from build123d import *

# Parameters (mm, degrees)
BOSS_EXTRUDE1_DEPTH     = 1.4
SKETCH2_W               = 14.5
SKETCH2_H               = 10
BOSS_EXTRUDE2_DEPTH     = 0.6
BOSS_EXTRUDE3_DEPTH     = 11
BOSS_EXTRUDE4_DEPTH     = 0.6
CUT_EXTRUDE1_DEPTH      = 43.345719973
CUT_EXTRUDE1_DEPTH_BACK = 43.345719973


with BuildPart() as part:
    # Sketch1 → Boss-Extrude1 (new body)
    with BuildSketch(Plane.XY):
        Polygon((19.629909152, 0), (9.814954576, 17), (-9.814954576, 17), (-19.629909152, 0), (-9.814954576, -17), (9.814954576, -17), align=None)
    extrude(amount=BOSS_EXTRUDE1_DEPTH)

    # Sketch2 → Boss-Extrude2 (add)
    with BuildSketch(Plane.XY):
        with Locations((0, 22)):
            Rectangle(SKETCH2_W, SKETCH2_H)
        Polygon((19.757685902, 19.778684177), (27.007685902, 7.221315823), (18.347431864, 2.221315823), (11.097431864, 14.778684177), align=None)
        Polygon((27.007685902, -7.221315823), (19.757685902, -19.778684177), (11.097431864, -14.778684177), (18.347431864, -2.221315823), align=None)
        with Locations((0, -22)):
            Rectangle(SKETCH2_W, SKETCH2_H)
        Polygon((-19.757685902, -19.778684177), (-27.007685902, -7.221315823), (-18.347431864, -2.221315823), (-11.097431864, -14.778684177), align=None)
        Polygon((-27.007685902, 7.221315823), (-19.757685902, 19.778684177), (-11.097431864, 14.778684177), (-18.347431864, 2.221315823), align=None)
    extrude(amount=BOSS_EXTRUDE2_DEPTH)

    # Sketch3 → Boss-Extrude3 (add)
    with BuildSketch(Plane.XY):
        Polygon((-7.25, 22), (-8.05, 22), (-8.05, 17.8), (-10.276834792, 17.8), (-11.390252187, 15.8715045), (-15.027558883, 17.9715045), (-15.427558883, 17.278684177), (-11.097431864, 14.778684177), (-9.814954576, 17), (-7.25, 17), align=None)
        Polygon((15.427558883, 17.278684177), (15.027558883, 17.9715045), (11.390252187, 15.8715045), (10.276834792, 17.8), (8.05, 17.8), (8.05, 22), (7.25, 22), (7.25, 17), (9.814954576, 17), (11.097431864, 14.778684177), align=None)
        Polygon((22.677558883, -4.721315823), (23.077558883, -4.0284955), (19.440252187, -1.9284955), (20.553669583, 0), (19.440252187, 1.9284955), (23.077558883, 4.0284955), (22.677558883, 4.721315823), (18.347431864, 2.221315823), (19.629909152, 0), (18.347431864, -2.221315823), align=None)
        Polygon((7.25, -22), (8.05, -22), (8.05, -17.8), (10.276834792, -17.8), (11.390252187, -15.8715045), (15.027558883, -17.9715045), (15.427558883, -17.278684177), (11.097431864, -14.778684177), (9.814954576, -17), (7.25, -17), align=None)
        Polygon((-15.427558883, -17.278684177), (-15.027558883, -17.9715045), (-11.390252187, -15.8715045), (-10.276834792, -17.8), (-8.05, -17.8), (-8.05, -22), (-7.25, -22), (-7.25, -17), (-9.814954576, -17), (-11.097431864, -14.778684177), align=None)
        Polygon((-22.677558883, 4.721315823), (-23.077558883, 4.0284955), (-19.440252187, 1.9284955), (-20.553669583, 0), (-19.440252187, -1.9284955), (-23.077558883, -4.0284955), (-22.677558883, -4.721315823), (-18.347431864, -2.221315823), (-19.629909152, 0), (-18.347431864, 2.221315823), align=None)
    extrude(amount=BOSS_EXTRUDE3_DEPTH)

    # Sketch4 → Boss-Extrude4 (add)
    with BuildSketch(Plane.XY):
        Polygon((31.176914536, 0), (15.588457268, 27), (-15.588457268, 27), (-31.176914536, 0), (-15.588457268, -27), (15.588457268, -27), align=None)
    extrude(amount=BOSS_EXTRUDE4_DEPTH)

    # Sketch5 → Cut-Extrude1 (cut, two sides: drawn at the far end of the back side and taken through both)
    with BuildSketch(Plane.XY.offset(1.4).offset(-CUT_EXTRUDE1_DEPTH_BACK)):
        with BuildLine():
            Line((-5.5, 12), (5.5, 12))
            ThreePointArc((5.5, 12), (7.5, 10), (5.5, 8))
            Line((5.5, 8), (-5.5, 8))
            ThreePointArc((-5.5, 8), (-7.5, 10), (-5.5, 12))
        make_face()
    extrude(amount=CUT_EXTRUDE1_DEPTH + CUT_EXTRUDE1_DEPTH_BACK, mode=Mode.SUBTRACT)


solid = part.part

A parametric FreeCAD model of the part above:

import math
import FreeCAD as App
import Part
import Sketcher

V = App.Vector
Q = App.Units.Quantity

doc = App.newDocument("Part")
body = doc.addObject("PartDesign::Body", "Body")

# Sketch on XY plane
sketch1 = body.newObject("Sketcher::SketchObject", "Sketch")
sketch1.AttachmentSupport = (doc.getObject("XY_Plane"), [""])
sketch1.MapMode = "FlatFace"
sketch1.addGeometry([
    Part.LineSegment(V(19.629909, 0, 0), V(9.814955, 17, 0)),  # 0
    Part.LineSegment(V(9.814955, 17, 0), V(-9.814955, 17, 0)),  # 1
    Part.LineSegment(V(-9.814955, 17, 0), V(-19.629909, 0, 0)),  # 2
    Part.LineSegment(V(-19.629909, 0, 0), V(-9.814955, -17, 0)),  # 3
    Part.LineSegment(V(-9.814955, -17, 0), V(9.814955, -17, 0)),  # 4
    Part.LineSegment(V(9.814955, -17, 0), V(19.629909, 0, 0)),  # 5
], False)
sketch1.addConstraint([
    Sketcher.Constraint("Coincident", 0, 2, 1, 1),
    Sketcher.Constraint("Coincident", 1, 2, 2, 1),
    Sketcher.Constraint("Coincident", 2, 2, 3, 1),
    Sketcher.Constraint("Coincident", 3, 2, 4, 1),
    Sketcher.Constraint("Coincident", 4, 2, 5, 1),
    Sketcher.Constraint("Coincident", 5, 2, 0, 1),
    Sketcher.Constraint("Horizontal", 1),
    Sketcher.Constraint("Horizontal", 4),
    Sketcher.Constraint("Symmetric", 0, 2, 3, 2, -1, 1),
    Sketcher.Constraint("Symmetric", 2, 2, 5, 2, -1, 1),
    Sketcher.Constraint("PointOnObject", 2, 2, -1),
    Sketcher.Constraint("Parallel", 2, 5),
    Sketcher.Constraint("Vertical", 1, 2, 3, 2),
    Sketcher.Constraint("Angle", 0, Q("120 deg")),
    Sketcher.Constraint("DistanceY", -1, 1, 0, 2, 17.0),
    Sketcher.Constraint("DistanceX", 1, 2, 1, 1, 19.629909),
])
pad1 = body.newObject("PartDesign::Pad", "Pad")
pad1.Profile = sketch1
pad1.Length = 1.4

# Sketch on XY plane
sketch2 = body.newObject("Sketcher::SketchObject", "Sketch001")
sketch2.AttachmentSupport = (doc.getObject("XY_Plane"), [""])
sketch2.MapMode = "FlatFace"
sketch2.addGeometry([
    Part.LineSegment(V(-7.25, 27, 0), V(-7.25, 17, 0)),  # 0
    Part.LineSegment(V(-7.25, 17, 0), V(7.25, 17, 0)),  # 1
    Part.LineSegment(V(7.25, 17, 0), V(7.25, 27, 0)),  # 2
    Part.LineSegment(V(7.25, 27, 0), V(-7.25, 27, 0)),  # 3
    Part.LineSegment(V(27.007686, 7.221316, 0), V(19.757686, 19.778684, 0)),  # 4
    Part.LineSegment(V(19.757686, 19.778684, 0), V(11.097432, 14.778684, 0)),  # 5
    Part.LineSegment(V(11.097432, 14.778684, 0), V(18.347432, 2.221316, 0)),  # 6
    Part.LineSegment(V(18.347432, 2.221316, 0), V(27.007686, 7.221316, 0)),  # 7
    Part.LineSegment(V(19.757686, -19.778684, 0), V(27.007686, -7.221316, 0)),  # 8
    Part.LineSegment(V(27.007686, -7.221316, 0), V(18.347432, -2.221316, 0)),  # 9
    Part.LineSegment(V(18.347432, -2.221316, 0), V(11.097432, -14.778684, 0)),  # 10
    Part.LineSegment(V(11.097432, -14.778684, 0), V(19.757686, -19.778684, 0)),  # 11
    Part.LineSegment(V(-7.25, -17, 0), V(-7.25, -27, 0)),  # 12
    Part.LineSegment(V(-7.25, -27, 0), V(7.25, -27, 0)),  # 13
    Part.LineSegment(V(7.25, -27, 0), V(7.25, -17, 0)),  # 14
    Part.LineSegment(V(7.25, -17, 0), V(-7.25, -17, 0)),  # 15
    Part.LineSegment(V(-27.007686, -7.221316, 0), V(-19.757686, -19.778684, 0)),  # 16
    Part.LineSegment(V(-19.757686, -19.778684, 0), V(-11.097432, -14.778684, 0)),  # 17
    Part.LineSegment(V(-11.097432, -14.778684, 0), V(-18.347432, -2.221316, 0)),  # 18
    Part.LineSegment(V(-18.347432, -2.221316, 0), V(-27.007686, -7.221316, 0)),  # 19
    Part.LineSegment(V(-19.757686, 19.778684, 0), V(-27.007686, 7.221316, 0)),  # 20
    Part.LineSegment(V(-27.007686, 7.221316, 0), V(-18.347432, 2.221316, 0)),  # 21
    Part.LineSegment(V(-18.347432, 2.221316, 0), V(-11.097432, 14.778684, 0)),  # 22
    Part.LineSegment(V(-11.097432, 14.778684, 0), V(-19.757686, 19.778684, 0)),  # 23
], False)
sketch2.addConstraint([
    Sketcher.Constraint("Coincident", 0, 2, 1, 1),
    Sketcher.Constraint("Coincident", 1, 2, 2, 1),
    Sketcher.Constraint("Coincident", 2, 2, 3, 1),
    Sketcher.Constraint("Coincident", 3, 2, 0, 1),
    Sketcher.Constraint("Coincident", 4, 2, 5, 1),
    Sketcher.Constraint("Coincident", 5, 2, 6, 1),
    Sketcher.Constraint("Coincident", 6, 2, 7, 1),
    Sketcher.Constraint("Coincident", 7, 2, 4, 1),
    Sketcher.Constraint("Coincident", 8, 2, 9, 1),
    Sketcher.Constraint("Coincident", 9, 2, 10, 1),
    Sketcher.Constraint("Coincident", 10, 2, 11, 1),
    Sketcher.Constraint("Coincident", 11, 2, 8, 1),
    Sketcher.Constraint("Coincident", 12, 2, 13, 1),
    Sketcher.Constraint("Coincident", 13, 2, 14, 1),
    Sketcher.Constraint("Coincident", 14, 2, 15, 1),
    Sketcher.Constraint("Coincident", 15, 2, 12, 1),
    Sketcher.Constraint("Coincident", 16, 2, 17, 1),
    Sketcher.Constraint("Coincident", 17, 2, 18, 1),
    Sketcher.Constraint("Coincident", 18, 2, 19, 1),
    Sketcher.Constraint("Coincident", 19, 2, 16, 1),
    Sketcher.Constraint("Coincident", 20, 2, 21, 1),
    Sketcher.Constraint("Coincident", 21, 2, 22, 1),
    Sketcher.Constraint("Coincident", 22, 2, 23, 1),
    Sketcher.Constraint("Coincident", 23, 2, 20, 1),
    Sketcher.Constraint("Vertical", 0),
    Sketcher.Constraint("Horizontal", 1),
    Sketcher.Constraint("Vertical", 2),
    Sketcher.Constraint("Horizontal", 3),
    Sketcher.Constraint("Vertical", 12),
    Sketcher.Constraint("Horizontal", 13),
    Sketcher.Constraint("Vertical", 14),
    Sketcher.Constraint("Horizontal", 15),
    Sketcher.Constraint("Symmetric", 2, 2, 12, 2, -1, 1),
    Sketcher.Constraint("Symmetric", 0, 2, 14, 2, -1, 1),
    Sketcher.Constraint("Symmetric", 4, 2, 16, 2, -1, 1),
    Sketcher.Constraint("Symmetric", 5, 2, 17, 2, -1, 1),
    Sketcher.Constraint("Symmetric", 6, 2, 18, 2, -1, 1),
    Sketcher.Constraint("Symmetric", 7, 2, 19, 2, -1, 1),
    Sketcher.Constraint("Symmetric", 8, 2, 20, 2, -1, 1),
    Sketcher.Constraint("Symmetric", 9, 2, 21, 2, -1, 1),
    Sketcher.Constraint("Symmetric", 10, 2, 22, 2, -1, 1),
    Sketcher.Constraint("Symmetric", 11, 2, 23, 2, -1, 1),
    Sketcher.Constraint("Symmetric", 11, 2, 16, 2, -2),
    Sketcher.Constraint("Symmetric", 10, 2, 17, 2, -2),
    Sketcher.Constraint("Symmetric", 9, 2, 18, 2, -2),
    Sketcher.Constraint("Symmetric", 8, 2, 19, 2, -2),
    Sketcher.Constraint("Perpendicular", 4, 5),
    Sketcher.Constraint("Perpendicular", 5, 6),
    Sketcher.Constraint("Perpendicular", 6, 7),
    Sketcher.Constraint("Vertical", 3, 2, 12, 2),
    Sketcher.Constraint("DistanceY", 0, 2, 0, 1, 10.0),
    Sketcher.Constraint("Angle", 4, Q("120 deg")),
    Sketcher.Constraint("Distance", 5, 10.0),
    Sketcher.Constraint("DistanceX", 1, 1, 1, 2, 14.5),
    Sketcher.Constraint("DistanceY", -1, 1, 0, 2, 17.0),
    Sketcher.Constraint("DistanceY", 8, 2, 5, 2, 22.0),
    Sketcher.Constraint("Distance", 4, 14.5),
    Sketcher.Constraint("DistanceX", -1, 1, 5, 2, 11.097432),
])
pad2 = body.newObject("PartDesign::Pad", "Pad001")
pad2.Profile = sketch2
pad2.Length = 0.6

# Sketch on XY plane
sketch3 = body.newObject("Sketcher::SketchObject", "Sketch002")
sketch3.AttachmentSupport = (doc.getObject("XY_Plane"), [""])
sketch3.MapMode = "FlatFace"
sketch3.addGeometry([
    Part.LineSegment(V(-7.25, 22, 0), V(-8.05, 22, 0)),  # 0
    Part.LineSegment(V(-8.05, 22, 0), V(-8.05, 17.8, 0)),  # 1
    Part.LineSegment(V(-8.05, 17.8, 0), V(-10.276835, 17.8, 0)),  # 2
    Part.LineSegment(V(-10.276835, 17.8, 0), V(-11.390252, 15.871505, 0)),  # 3
    Part.LineSegment(V(-11.390252, 15.871505, 0), V(-15.027559, 17.971505, 0)),  # 4
    Part.LineSegment(V(-15.027559, 17.971505, 0), V(-15.427559, 17.278684, 0)),  # 5
    Part.LineSegment(V(-15.427559, 17.278684, 0), V(-11.097432, 14.778684, 0)),  # 6
    Part.LineSegment(V(-11.097432, 14.778684, 0), V(-9.814955, 17, 0)),  # 7
    Part.LineSegment(V(-9.814955, 17, 0), V(-7.25, 17, 0)),  # 8
    Part.LineSegment(V(-7.25, 17, 0), V(-7.25, 22, 0)),  # 9
    Part.LineSegment(V(15.427559, 17.278684, 0), V(15.027559, 17.971505, 0)),  # 10
    Part.LineSegment(V(15.027559, 17.971505, 0), V(11.390252, 15.871505, 0)),  # 11
    Part.LineSegment(V(11.390252, 15.871505, 0), V(10.276835, 17.8, 0)),  # 12
    Part.LineSegment(V(10.276835, 17.8, 0), V(8.05, 17.8, 0)),  # 13
    Part.LineSegment(V(8.05, 17.8, 0), V(8.05, 22, 0)),  # 14
    Part.LineSegment(V(8.05, 22, 0), V(7.25, 22, 0)),  # 15
    Part.LineSegment(V(7.25, 22, 0), V(7.25, 17, 0)),  # 16
    Part.LineSegment(V(7.25, 17, 0), V(9.814955, 17, 0)),  # 17
    Part.LineSegment(V(9.814955, 17, 0), V(11.097432, 14.778684, 0)),  # 18
    Part.LineSegment(V(11.097432, 14.778684, 0), V(15.427559, 17.278684, 0)),  # 19
    Part.LineSegment(V(22.677559, -4.721316, 0), V(23.077559, -4.028496, 0)),  # 20
    Part.LineSegment(V(23.077559, -4.028496, 0), V(19.440252, -1.928495, 0)),  # 21
    Part.LineSegment(V(19.440252, -1.928495, 0), V(20.55367, 0, 0)),  # 22
    Part.LineSegment(V(20.55367, 0, 0), V(19.440252, 1.928495, 0)),  # 23
    Part.LineSegment(V(19.440252, 1.928495, 0), V(23.077559, 4.028496, 0)),  # 24
    Part.LineSegment(V(23.077559, 4.028496, 0), V(22.677559, 4.721316, 0)),  # 25
    Part.LineSegment(V(22.677559, 4.721316, 0), V(18.347432, 2.221316, 0)),  # 26
    Part.LineSegment(V(18.347432, 2.221316, 0), V(19.629909, 0, 0)),  # 27
    Part.LineSegment(V(19.629909, 0, 0), V(18.347432, -2.221316, 0)),  # 28
    Part.LineSegment(V(18.347432, -2.221316, 0), V(22.677559, -4.721316, 0)),  # 29
    Part.LineSegment(V(7.25, -22, 0), V(8.05, -22, 0)),  # 30
    Part.LineSegment(V(8.05, -22, 0), V(8.05, -17.8, 0)),  # 31
    Part.LineSegment(V(8.05, -17.8, 0), V(10.276835, -17.8, 0)),  # 32
    Part.LineSegment(V(10.276835, -17.8, 0), V(11.390252, -15.871505, 0)),  # 33
    Part.LineSegment(V(11.390252, -15.871505, 0), V(15.027559, -17.971505, 0)),  # 34
    Part.LineSegment(V(15.027559, -17.971505, 0), V(15.427559, -17.278684, 0)),  # 35
    Part.LineSegment(V(15.427559, -17.278684, 0), V(11.097432, -14.778684, 0)),  # 36
    Part.LineSegment(V(11.097432, -14.778684, 0), V(9.814955, -17, 0)),  # 37
    Part.LineSegment(V(9.814955, -17, 0), V(7.25, -17, 0)),  # 38
    Part.LineSegment(V(7.25, -17, 0), V(7.25, -22, 0)),  # 39
    Part.LineSegment(V(-15.427559, -17.278684, 0), V(-15.027559, -17.971505, 0)),  # 40
    Part.LineSegment(V(-15.027559, -17.971505, 0), V(-11.390252, -15.871505, 0)),  # 41
    Part.LineSegment(V(-11.390252, -15.871505, 0), V(-10.276835, -17.8, 0)),  # 42
    Part.LineSegment(V(-10.276835, -17.8, 0), V(-8.05, -17.8, 0)),  # 43
    Part.LineSegment(V(-8.05, -17.8, 0), V(-8.05, -22, 0)),  # 44
    Part.LineSegment(V(-8.05, -22, 0), V(-7.25, -22, 0)),  # 45
    Part.LineSegment(V(-7.25, -22, 0), V(-7.25, -17, 0)),  # 46
    Part.LineSegment(V(-7.25, -17, 0), V(-9.814955, -17, 0)),  # 47
    Part.LineSegment(V(-9.814955, -17, 0), V(-11.097432, -14.778684, 0)),  # 48
    Part.LineSegment(V(-11.097432, -14.778684, 0), V(-15.427559, -17.278684, 0)),  # 49
    Part.LineSegment(V(-22.677559, 4.721316, 0), V(-23.077559, 4.028496, 0)),  # 50
    Part.LineSegment(V(-23.077559, 4.028496, 0), V(-19.440252, 1.928495, 0)),  # 51
    Part.LineSegment(V(-19.440252, 1.928495, 0), V(-20.55367, 0, 0)),  # 52
    Part.LineSegment(V(-20.55367, 0, 0), V(-19.440252, -1.928495, 0)),  # 53
    Part.LineSegment(V(-19.440252, -1.928495, 0), V(-23.077559, -4.028496, 0)),  # 54
    Part.LineSegment(V(-23.077559, -4.028496, 0), V(-22.677559, -4.721316, 0)),  # 55
    Part.LineSegment(V(-22.677559, -4.721316, 0), V(-18.347432, -2.221316, 0)),  # 56
    Part.LineSegment(V(-18.347432, -2.221316, 0), V(-19.629909, 0, 0)),  # 57
    Part.LineSegment(V(-19.629909, 0, 0), V(-18.347432, 2.221316, 0)),  # 58
    Part.LineSegment(V(-18.347432, 2.221316, 0), V(-22.677559, 4.721316, 0)),  # 59
], False)
sketch3.addConstraint([
    Sketcher.Constraint("Coincident", 0, 2, 1, 1),
    Sketcher.Constraint("Coincident", 1, 2, 2, 1),
    Sketcher.Constraint("Coincident", 2, 2, 3, 1),
    Sketcher.Constraint("Coincident", 3, 2, 4, 1),
    Sketcher.Constraint("Coincident", 4, 2, 5, 1),
    Sketcher.Constraint("Coincident", 5, 2, 6, 1),
    Sketcher.Constraint("Coincident", 6, 2, 7, 1),
    Sketcher.Constraint("Coincident", 7, 2, 8, 1),
    Sketcher.Constraint("Coincident", 8, 2, 9, 1),
    Sketcher.Constraint("Coincident", 9, 2, 0, 1),
    Sketcher.Constraint("Coincident", 10, 2, 11, 1),
    Sketcher.Constraint("Coincident", 11, 2, 12, 1),
    Sketcher.Constraint("Coincident", 12, 2, 13, 1),
    Sketcher.Constraint("Coincident", 13, 2, 14, 1),
    Sketcher.Constraint("Coincident", 14, 2, 15, 1),
    Sketcher.Constraint("Coincident", 15, 2, 16, 1),
    Sketcher.Constraint("Coincident", 16, 2, 17, 1),
    Sketcher.Constraint("Coincident", 17, 2, 18, 1),
    Sketcher.Constraint("Coincident", 18, 2, 19, 1),
    Sketcher.Constraint("Coincident", 19, 2, 10, 1),
    Sketcher.Constraint("Coincident", 20, 2, 21, 1),
    Sketcher.Constraint("Coincident", 21, 2, 22, 1),
    Sketcher.Constraint("Coincident", 22, 2, 23, 1),
    Sketcher.Constraint("Coincident", 23, 2, 24, 1),
    Sketcher.Constraint("Coincident", 24, 2, 25, 1),
    Sketcher.Constraint("Coincident", 25, 2, 26, 1),
    Sketcher.Constraint("Coincident", 26, 2, 27, 1),
    Sketcher.Constraint("Coincident", 27, 2, 28, 1),
    Sketcher.Constraint("Coincident", 28, 2, 29, 1),
    Sketcher.Constraint("Coincident", 29, 2, 20, 1),
    Sketcher.Constraint("Coincident", 30, 2, 31, 1),
    Sketcher.Constraint("Coincident", 31, 2, 32, 1),
    Sketcher.Constraint("Coincident", 32, 2, 33, 1),
    Sketcher.Constraint("Coincident", 33, 2, 34, 1),
    Sketcher.Constraint("Coincident", 34, 2, 35, 1),
    Sketcher.Constraint("Coincident", 35, 2, 36, 1),
    Sketcher.Constraint("Coincident", 36, 2, 37, 1),
    Sketcher.Constraint("Coincident", 37, 2, 38, 1),
    Sketcher.Constraint("Coincident", 38, 2, 39, 1),
    Sketcher.Constraint("Coincident", 39, 2, 30, 1),
    Sketcher.Constraint("Coincident", 40, 2, 41, 1),
    Sketcher.Constraint("Coincident", 41, 2, 42, 1),
    Sketcher.Constraint("Coincident", 42, 2, 43, 1),
    Sketcher.Constraint("Coincident", 43, 2, 44, 1),
    Sketcher.Constraint("Coincident", 44, 2, 45, 1),
    Sketcher.Constraint("Coincident", 45, 2, 46, 1),
    Sketcher.Constraint("Coincident", 46, 2, 47, 1),
    Sketcher.Constraint("Coincident", 47, 2, 48, 1),
    Sketcher.Constraint("Coincident", 48, 2, 49, 1),
    Sketcher.Constraint("Coincident", 49, 2, 40, 1),
    Sketcher.Constraint("Coincident", 50, 2, 51, 1),
    Sketcher.Constraint("Coincident", 51, 2, 52, 1),
    Sketcher.Constraint("Coincident", 52, 2, 53, 1),
    Sketcher.Constraint("Coincident", 53, 2, 54, 1),
    Sketcher.Constraint("Coincident", 54, 2, 55, 1),
    Sketcher.Constraint("Coincident", 55, 2, 56, 1),
    Sketcher.Constraint("Coincident", 56, 2, 57, 1),
    Sketcher.Constraint("Coincident", 57, 2, 58, 1),
    Sketcher.Constraint("Coincident", 58, 2, 59, 1),
    Sketcher.Constraint("Coincident", 59, 2, 50, 1),
    Sketcher.Constraint("Horizontal", 0),
    Sketcher.Constraint("Vertical", 1),
    Sketcher.Constraint("Horizontal", 2),
    Sketcher.Constraint("Horizontal", 8),
    Sketcher.Constraint("Vertical", 9),
    Sketcher.Constraint("Horizontal", 13),
    Sketcher.Constraint("Vertical", 14),
    Sketcher.Constraint("Horizontal", 15),
    Sketcher.Constraint("Vertical", 16),
    Sketcher.Constraint("Horizontal", 17),
    Sketcher.Constraint("Horizontal", 30),
    Sketcher.Constraint("Vertical", 31),
    Sketcher.Constraint("Horizontal", 32),
    Sketcher.Constraint("Horizontal", 38),
    Sketcher.Constraint("Vertical", 39),
    Sketcher.Constraint("Horizontal", 43),
    Sketcher.Constraint("Vertical", 44),
    Sketcher.Constraint("Horizontal", 45),
    Sketcher.Constraint("Vertical", 46),
    Sketcher.Constraint("Horizontal", 47),
    Sketcher.Constraint("Symmetric", 0, 2, 30, 2, -1, 1),
    Sketcher.Constraint("Symmetric", 2, 2, 32, 2, -1, 1),
    Sketcher.Constraint("Symmetric", 3, 2, 33, 2, -1, 1),
    Sketcher.Constraint("Symmetric", 4, 2, 34, 2, -1, 1),
    Sketcher.Constraint("Symmetric", 5, 2, 35, 2, -1, 1),
    Sketcher.Constraint("Symmetric", 6, 2, 36, 2, -1, 1),
    Sketcher.Constraint("Symmetric", 7, 2, 37, 2, -1, 1),
    Sketcher.Constraint("Symmetric", 10, 2, 40, 2, -1, 1),
    Sketcher.Constraint("Symmetric", 11, 2, 41, 2, -1, 1),
    Sketcher.Constraint("Symmetric", 12, 2, 42, 2, -1, 1),
    Sketcher.Constraint("Symmetric", 14, 2, 44, 2, -1, 1),
    Sketcher.Constraint("Symmetric", 16, 2, 46, 2, -1, 1),
    Sketcher.Constraint("Symmetric", 18, 2, 48, 2, -1, 1),
    Sketcher.Constraint("Symmetric", 19, 2, 49, 2, -1, 1),
    Sketcher.Constraint("Symmetric", 20, 2, 50, 2, -1, 1),
    Sketcher.Constraint("Symmetric", 21, 2, 51, 2, -1, 1),
    Sketcher.Constraint("Symmetric", 22, 2, 52, 2, -1, 1),
    Sketcher.Constraint("Symmetric", 23, 2, 53, 2, -1, 1),
    Sketcher.Constraint("Symmetric", 24, 2, 54, 2, -1, 1),
    Sketcher.Constraint("Symmetric", 25, 2, 55, 2, -1, 1),
    Sketcher.Constraint("Symmetric", 26, 2, 56, 2, -1, 1),
    Sketcher.Constraint("Symmetric", 27, 2, 57, 2, -1, 1),
    Sketcher.Constraint("Symmetric", 28, 2, 58, 2, -1, 1),
    Sketcher.Constraint("Symmetric", 29, 2, 59, 2, -1, 1),
    Sketcher.Constraint("Symmetric", 4, 2, 10, 2, -2),
    Sketcher.Constraint("Symmetric", 3, 2, 11, 2, -2),
    Sketcher.Constraint("Symmetric", 2, 2, 12, 2, -2),
    Sketcher.Constraint("Symmetric", 0, 2, 14, 2, -2),
    Sketcher.Constraint("Symmetric", 8, 2, 16, 2, -2),
    Sketcher.Constraint("Symmetric", 6, 2, 18, 2, -2),
    Sketcher.Constraint("Symmetric", 5, 2, 19, 2, -2),
    Sketcher.Constraint("Symmetric", 24, 2, 50, 2, -2),
    Sketcher.Constraint("Symmetric", 23, 2, 51, 2, -2),
    Sketcher.Constraint("Symmetric", 29, 2, 55, 2, -2),
    Sketcher.Constraint("Symmetric", 28, 2, 56, 2, -2),
    Sketcher.Constraint("PointOnObject", 22, 2, -1),
    Sketcher.Constraint("PointOnObject", 27, 2, -1),
    Sketcher.Constraint("Perpendicular", 3, 4),
    Sketcher.Constraint("Perpendicular", 4, 5),
    Sketcher.Constraint("Perpendicular", 5, 6),
    Sketcher.Constraint("Perpendicular", 6, 7),
    Sketcher.Constraint("Parallel", 12, 18),
    Sketcher.Constraint("Parallel", 7, 20),
    Sketcher.Constraint("Perpendicular", 20, 21),
    Sketcher.Constraint("Perpendicular", 21, 22),
    Sketcher.Constraint("Perpendicular", 25, 26),
    Sketcher.Constraint("Perpendicular", 26, 27),
    Sketcher.Constraint("Parallel", 42, 48),
    Sketcher.Constraint("Vertical", 16, 2, 38, 2),
    Sketcher.Constraint("Equal", 10, 20),
    Sketcher.Constraint("Equal", 11, 21),
    Sketcher.Constraint("Equal", 12, 22),
    Sketcher.Constraint("Equal", 19, 26),
    Sketcher.Constraint("Equal", 18, 27),
    Sketcher.Constraint("DistanceY", 9, 1, 9, 2, 5.0),
    Sketcher.Constraint("Angle", 3, Q("-120 deg")),
    Sketcher.Constraint("Distance", 6, 5.0),
    Sketcher.Constraint("DistanceX", 0, 2, 0, 1, 0.8),
    Sketcher.Constraint("DistanceY", 1, 2, 1, 1, 4.2),
    Sketcher.Constraint("DistanceY", -1, 1, 0, 2, 22.0),
    Sketcher.Constraint("Distance", 5, 0.8),
    Sketcher.Constraint("DistanceX", 8, 2, 13, 2, 15.3),
    Sketcher.Constraint("DistanceX", 19, 2, 20, 2, 7.65),
    Sketcher.Constraint("DistanceX", 2, 2, 2, 1, 2.226835),
    Sketcher.Constraint("DistanceX", 4, 2, -1, 1, 15.027559),
])
pad3 = body.newObject("PartDesign::Pad", "Pad002")
pad3.Profile = sketch3
pad3.Length = 11

# Sketch on XY plane
sketch4 = body.newObject("Sketcher::SketchObject", "Sketch003")
sketch4.AttachmentSupport = (doc.getObject("XY_Plane"), [""])
sketch4.MapMode = "FlatFace"
sketch4.addGeometry([
    Part.LineSegment(V(31.176915, 0, 0), V(15.588457, 27, 0)),  # 0
    Part.LineSegment(V(15.588457, 27, 0), V(-15.588457, 27, 0)),  # 1
    Part.LineSegment(V(-15.588457, 27, 0), V(-31.176915, 0, 0)),  # 2
    Part.LineSegment(V(-31.176915, 0, 0), V(-15.588457, -27, 0)),  # 3
    Part.LineSegment(V(-15.588457, -27, 0), V(15.588457, -27, 0)),  # 4
    Part.LineSegment(V(15.588457, -27, 0), V(31.176915, 0, 0)),  # 5
], False)
sketch4.addConstraint([
    Sketcher.Constraint("Coincident", 0, 2, 1, 1),
    Sketcher.Constraint("Coincident", 1, 2, 2, 1),
    Sketcher.Constraint("Coincident", 2, 2, 3, 1),
    Sketcher.Constraint("Coincident", 3, 2, 4, 1),
    Sketcher.Constraint("Coincident", 4, 2, 5, 1),
    Sketcher.Constraint("Coincident", 5, 2, 0, 1),
    Sketcher.Constraint("Horizontal", 1),
    Sketcher.Constraint("Horizontal", 4),
    Sketcher.Constraint("Symmetric", 0, 2, 3, 2, -1, 1),
    Sketcher.Constraint("Symmetric", 2, 2, 5, 2, -1, 1),
    Sketcher.Constraint("PointOnObject", 2, 2, -1),
    Sketcher.Constraint("Parallel", 2, 5),
    Sketcher.Constraint("Vertical", 1, 2, 3, 2),
    Sketcher.Constraint("Angle", 0, Q("120 deg")),
    Sketcher.Constraint("DistanceY", -1, 1, 0, 2, 27.0),
    Sketcher.Constraint("DistanceX", 1, 2, 1, 1, 31.176915),
])
pad4 = body.newObject("PartDesign::Pad", "Pad003")
pad4.Profile = sketch4
pad4.Length = 0.6

# Sketch on XY plane
sketch5 = body.newObject("Sketcher::SketchObject", "Sketch004")
sketch5.AttachmentSupport = (doc.getObject("XY_Plane"), [""])
sketch5.MapMode = "FlatFace"
sketch5.AttachmentOffset = App.Placement(V(0, 0, 1.4), App.Rotation())
sketch5.addGeometry([
    Part.LineSegment(V(5.5, 12, 0), V(-5.5, 12, 0)),
    Part.ArcOfCircle(Part.Circle(V(-5.5, 10, 0), V(0, 0, 1), 2), math.radians(90), math.radians(270)),
    Part.LineSegment(V(-5.5, 8, 0), V(5.5, 8, 0)),
    Part.ArcOfCircle(Part.Circle(V(5.5, 10, 0), V(0, 0, 1), 2), math.radians(-90), math.radians(90)),
], False)
sketch5.addConstraint([
    Sketcher.Constraint("Tangent", 0, 2, 1, 1),
    Sketcher.Constraint("Tangent", 1, 2, 2, 1),
    Sketcher.Constraint("Tangent", 2, 2, 3, 1),
    Sketcher.Constraint("Tangent", 3, 2, 0, 1),
    Sketcher.Constraint("Horizontal", 0),
    Sketcher.Constraint("Horizontal", 2),
    Sketcher.Constraint("Radius", 1, 2.0),
    Sketcher.Constraint("DistanceX", 0, 2, 0, 1, 11.0),
    Sketcher.Constraint("DistanceY", -1, 1, 1, 3, 10.0),
    Sketcher.Constraint("DistanceX", 1, 3, -1, 1, 5.5),
])
pocket1 = body.newObject("PartDesign::Pocket", "Pocket")
pocket1.Profile = sketch5
pocket1.Type = "ThroughAll"
pocket1.Midplane = True

doc.recompute()
